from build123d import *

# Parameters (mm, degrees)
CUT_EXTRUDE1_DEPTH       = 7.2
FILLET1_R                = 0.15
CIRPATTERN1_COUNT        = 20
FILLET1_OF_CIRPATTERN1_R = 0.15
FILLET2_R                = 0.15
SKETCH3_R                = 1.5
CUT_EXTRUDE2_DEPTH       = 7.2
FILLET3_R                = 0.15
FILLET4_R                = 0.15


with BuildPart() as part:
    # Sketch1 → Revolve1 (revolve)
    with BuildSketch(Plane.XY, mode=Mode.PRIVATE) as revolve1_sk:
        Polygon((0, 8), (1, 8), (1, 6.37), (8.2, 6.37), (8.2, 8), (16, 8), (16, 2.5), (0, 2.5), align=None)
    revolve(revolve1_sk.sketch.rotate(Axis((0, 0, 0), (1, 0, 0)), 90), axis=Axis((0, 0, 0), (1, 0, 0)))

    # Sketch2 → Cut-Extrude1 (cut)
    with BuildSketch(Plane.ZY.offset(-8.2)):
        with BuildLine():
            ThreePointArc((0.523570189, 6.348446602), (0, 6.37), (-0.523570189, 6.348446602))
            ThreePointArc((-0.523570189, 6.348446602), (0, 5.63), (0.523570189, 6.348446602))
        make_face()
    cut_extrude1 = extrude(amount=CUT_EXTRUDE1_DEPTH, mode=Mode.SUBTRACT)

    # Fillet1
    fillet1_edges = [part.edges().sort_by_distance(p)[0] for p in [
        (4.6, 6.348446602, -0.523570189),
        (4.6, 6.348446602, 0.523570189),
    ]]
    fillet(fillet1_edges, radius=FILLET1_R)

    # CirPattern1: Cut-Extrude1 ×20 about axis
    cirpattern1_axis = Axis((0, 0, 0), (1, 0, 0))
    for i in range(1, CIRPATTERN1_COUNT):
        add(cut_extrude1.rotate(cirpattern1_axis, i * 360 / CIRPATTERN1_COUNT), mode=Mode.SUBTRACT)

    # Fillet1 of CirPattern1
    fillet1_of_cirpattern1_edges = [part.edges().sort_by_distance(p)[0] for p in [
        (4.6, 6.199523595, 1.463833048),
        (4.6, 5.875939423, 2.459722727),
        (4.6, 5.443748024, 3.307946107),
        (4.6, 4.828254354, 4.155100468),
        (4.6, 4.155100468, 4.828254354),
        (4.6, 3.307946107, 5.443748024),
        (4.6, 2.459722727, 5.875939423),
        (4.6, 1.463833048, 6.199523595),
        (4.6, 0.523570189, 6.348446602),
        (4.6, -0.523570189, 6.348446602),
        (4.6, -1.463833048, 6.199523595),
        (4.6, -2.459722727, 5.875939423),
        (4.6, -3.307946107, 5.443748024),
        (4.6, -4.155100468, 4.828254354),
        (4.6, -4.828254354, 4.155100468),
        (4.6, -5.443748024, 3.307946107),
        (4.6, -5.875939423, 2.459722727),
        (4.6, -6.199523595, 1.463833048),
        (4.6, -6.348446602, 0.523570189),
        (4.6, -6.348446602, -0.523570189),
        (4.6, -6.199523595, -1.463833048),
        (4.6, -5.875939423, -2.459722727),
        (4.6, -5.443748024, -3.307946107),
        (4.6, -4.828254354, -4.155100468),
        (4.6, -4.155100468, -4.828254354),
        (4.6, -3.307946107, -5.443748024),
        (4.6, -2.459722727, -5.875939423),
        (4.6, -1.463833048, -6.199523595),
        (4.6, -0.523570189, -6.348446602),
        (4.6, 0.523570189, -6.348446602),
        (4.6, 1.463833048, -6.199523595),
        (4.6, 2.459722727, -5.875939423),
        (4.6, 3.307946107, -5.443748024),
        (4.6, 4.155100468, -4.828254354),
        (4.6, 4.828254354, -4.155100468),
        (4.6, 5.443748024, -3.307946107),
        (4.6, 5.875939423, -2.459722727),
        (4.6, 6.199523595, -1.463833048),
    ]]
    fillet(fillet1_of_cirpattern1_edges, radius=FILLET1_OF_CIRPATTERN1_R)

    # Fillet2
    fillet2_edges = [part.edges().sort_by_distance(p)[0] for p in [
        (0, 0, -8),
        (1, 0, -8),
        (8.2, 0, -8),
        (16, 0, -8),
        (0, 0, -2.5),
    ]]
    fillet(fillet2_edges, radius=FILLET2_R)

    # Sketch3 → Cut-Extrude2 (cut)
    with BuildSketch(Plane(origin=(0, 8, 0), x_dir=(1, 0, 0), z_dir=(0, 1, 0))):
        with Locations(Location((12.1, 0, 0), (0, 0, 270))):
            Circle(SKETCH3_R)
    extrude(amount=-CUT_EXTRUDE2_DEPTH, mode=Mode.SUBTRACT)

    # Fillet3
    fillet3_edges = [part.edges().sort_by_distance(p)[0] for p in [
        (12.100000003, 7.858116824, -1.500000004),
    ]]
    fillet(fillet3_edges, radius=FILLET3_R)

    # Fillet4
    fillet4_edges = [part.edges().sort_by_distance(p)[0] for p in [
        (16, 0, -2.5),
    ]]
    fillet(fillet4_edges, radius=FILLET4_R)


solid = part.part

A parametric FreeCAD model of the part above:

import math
import FreeCAD as App
import Part
import Sketcher


def edges_at(feature, points):
    """Names of the edges that pass closest to the given points."""
    edges = feature.Shape.Edges
    near = lambda p: min(range(len(edges)), key=lambda i: edges[i].distToShape(Part.Vertex(*p))[0])
    return sorted({f"Edge{near(p) + 1}" for p in points})


def add_polygon(sketch, points):
    """Adds a closed chain of lines whose ends are joined by coincident constraints."""
    first, n = sketch.GeometryCount, len(points)
    for a, b in zip(points, points[1:] + points[:1]):
        sketch.addGeometry(Part.LineSegment(App.Vector(*a, 0), App.Vector(*b, 0)), False)
    for i in range(n):
        sketch.addConstraint(Sketcher.Constraint("Coincident", first + i, 2, first + (i + 1) % n, 1))

doc = App.newDocument("Part")
params = doc.addObject("Spreadsheet::Sheet", "Params")
for row, (alias, value) in enumerate([
    ("sketch1_width", "1 mm"),
    ("sketch1_width2", "16 mm"),
    ("sketch1_width3", "7.8 mm"),
    ("sketch1_height", "5.5 mm"),
    ("sketch1_height2", "1.63 mm"),
    ("revolution_angle", "360 deg"),
    ("sketch2_radius", "6.37 mm"),
    ("sketch2_radius2", "0.55 mm"),
    ("pocket1_length", "7.2 mm"),
    ("fillet_radius", "0.15 mm"),
    ("fillet2_radius", "0.15 mm"),
    ("fillet3_radius", "0.15 mm"),
    ("sketch3_diameter", "3 mm"),
    ("pocket2_length", "7.2 mm"),
    ("fillet4_radius", "0.15 mm"),
    ("fillet5_radius", "0.15 mm"),
], start=1):
    params.set(f"A{row}", alias)
    params.set(f"B{row}", "=" + value)
    params.setAlias(f"B{row}", alias)

body = doc.addObject("PartDesign::Body", "Body")

# Sketch on XY plane
sketch1 = doc.addObject("Sketcher::SketchObject", "Sketch")
body.addObject(sketch1)
sketch1.AttachmentSupport = (doc.XY_Plane, [""])
sketch1.MapMode = "FlatFace"
add_polygon(sketch1, [(1, 8), (0, 8), (0, 2.5), (16, 2.5), (16, 8), (8.2, 8), (8.2, 6.4), (1, 6.4)])  # lines 0-7
sketch1.addConstraint(Sketcher.Constraint("Horizontal", 0))
sketch1.addConstraint(Sketcher.Constraint("Vertical", 1))
sketch1.addConstraint(Sketcher.Constraint("Horizontal", 2))
sketch1.addConstraint(Sketcher.Constraint("Vertical", 3))
sketch1.addConstraint(Sketcher.Constraint("Horizontal", 4))
sketch1.addConstraint(Sketcher.Constraint("Vertical", 5))
sketch1.addConstraint(Sketcher.Constraint("Horizontal", 6))
sketch1.addConstraint(Sketcher.Constraint("Vertical", 7))
sketch1.addConstraint(Sketcher.Constraint("PointOnObject", 0, 2, -2))
sketch1.addConstraint(Sketcher.Constraint("Horizontal", 0, 2, 3, 2))
sketch1.addConstraint(Sketcher.Constraint("DistanceX", 0, 2, 0, 1, 1.0))
sketch1.addConstraint(Sketcher.Constraint("DistanceX", 2, 1, 2, 2, 16.0))
sketch1.addConstraint(Sketcher.Constraint("DistanceX", 4, 2, 4, 1, 7.8))
sketch1.addConstraint(Sketcher.Constraint("DistanceY", 1, 2, 1, 1, 5.5))
sketch1.addConstraint(Sketcher.Constraint("DistanceY", -1, 1, 0, 2, 8.0))
sketch1.addConstraint(Sketcher.Constraint("DistanceY", 5, 2, 5, 1, 1.63))
sketch1.setExpression("Constraints[18]", "Params.sketch1_width")
sketch1.setExpression("Constraints[19]", "Params.sketch1_width2")
sketch1.setExpression("Constraints[20]", "Params.sketch1_width3")
sketch1.setExpression("Constraints[21]", "Params.sketch1_height")
sketch1.setExpression("Constraints[23]", "Params.sketch1_height2")
revolution = doc.addObject("PartDesign::Revolution", "Revolution")
body.addObject(revolution)
revolution.Profile = sketch1
revolution.ReferenceAxis = (sketch1, ["H_Axis"])
revolution.setExpression("Angle", "Params.revolution_angle")

# Sketch on YZ plane
sketch2 = doc.addObject("Sketcher::SketchObject", "Sketch001")
body.addObject(sketch2)
sketch2.AttachmentSupport = (doc.YZ_Plane, [""])
sketch2.MapMode = "FlatFace"
sketch2.AttachmentOffset = App.Placement(App.Vector(0, 0, 8.2), App.Rotation())
sketch2.addGeometry(Part.ArcOfCircle(Part.Circle(App.Vector(0, 0, 0), App.Vector(0, 0, 1), 6.4), math.radians(-4.71), math.radians(4.71)), False)
sketch2.addGeometry(Part.ArcOfCircle(Part.Circle(App.Vector(6.2, 0, 0), App.Vector(0, 0, 1), 0.6), math.radians(72), math.radians(288)), False)
sketch2.addConstraint(Sketcher.Constraint("Coincident", 0, 1, 1, 2))
sketch2.addConstraint(Sketcher.Constraint("Coincident", 1, 1, 0, 2))
sketch2.addConstraint(Sketcher.Constraint("Coincident", 0, 3, -1, 1))
sketch2.addConstraint(Sketcher.Constraint("PointOnObject", 1, 3, -1))
sketch2.addConstraint(Sketcher.Constraint("Radius", 0, 6.37))
sketch2.addConstraint(Sketcher.Constraint("Radius", 1, 0.55))
sketch2.addConstraint(Sketcher.Constraint("DistanceX", -1, 1, 1, 3, 6.18))
sketch2.setExpression("Constraints[4]", "Params.sketch2_radius")
sketch2.setExpression("Constraints[5]", "Params.sketch2_radius2")
pocket1 = doc.addObject("PartDesign::Pocket", "Pocket")
body.addObject(pocket1)
pocket1.Profile = sketch2
pocket1.setExpression("Length", "Params.pocket1_length")
doc.recompute()

fillet = doc.addObject("PartDesign::Fillet", "Fillet")
body.addObject(fillet)
fillet.Base = (pocket1, edges_at(pocket1, [(4.6, 6.348, -0.524), (4.6, 6.348, 0.524)]))
fillet.setExpression("Radius", "Params.fillet_radius")
doc.recompute()

polarpattern = doc.addObject("PartDesign::PolarPattern", "PolarPattern")
body.addObject(polarpattern)
polarpattern.Originals = [pocket1]
polarpattern.Axis = (doc.X_Axis, [""])
polarpattern.Angle = 360
polarpattern.Occurrences = 20
body.Tip = polarpattern
doc.recompute()

fillet2 = doc.addObject("PartDesign::Fillet", "Fillet001")
body.addObject(fillet2)
fillet2.Base = (polarpattern, edges_at(polarpattern, [
    (4.6, 6.2, 1.464),
    (4.6, 5.876, 2.46),
    (4.6, 5.444, 3.308),
    (4.6, 4.828, 4.155),
    (4.6, 4.155, 4.828),
    (4.6, 3.308, 5.444),
    (4.6, 2.46, 5.876),
    (4.6, 1.464, 6.2),
    (4.6, 0.524, 6.348),
    (4.6, -0.524, 6.348),
    (4.6, -1.464, 6.2),
    (4.6, -2.46, 5.876),
    (4.6, -3.308, 5.444),
    (4.6, -4.155, 4.828),
    (4.6, -4.828, 4.155),
    (4.6, -5.444, 3.308),
    (4.6, -5.876, 2.46),
    (4.6, -6.2, 1.464),
    (4.6, -6.348, 0.524),
    (4.6, -6.348, -0.524),
    (4.6, -6.2, -1.464),
    (4.6, -5.876, -2.46),
    (4.6, -5.444, -3.308),
    (4.6, -4.828, -4.155),
    (4.6, -4.155, -4.828),
    (4.6, -3.308, -5.444),
    (4.6, -2.46, -5.876),
    (4.6, -1.464, -6.2),
    (4.6, -0.524, -6.348),
    (4.6, 0.524, -6.348),
    (4.6, 1.464, -6.2),
    (4.6, 2.46, -5.876),
    (4.6, 3.308, -5.444),
    (4.6, 4.155, -4.828),
    (4.6, 4.828, -4.155),
    (4.6, 5.444, -3.308),
    (4.6, 5.876, -2.46),
    (4.6, 6.2, -1.464),
]))
fillet2.setExpression("Radius", "Params.fillet2_radius")
doc.recompute()

fillet3 = doc.addObject("PartDesign::Fillet", "Fillet002")
body.addObject(fillet3)
fillet3.Base = (fillet2, edges_at(fillet2, [
    (0, 0, -8),
    (1, 0, -8),
    (8.2, 0, -8),
    (16, 0, -8),
    (0, 0, -2.5),
]))
fillet3.setExpression("Radius", "Params.fillet3_radius")

# Sketch on XZ plane
sketch3 = doc.addObject("Sketcher::SketchObject", "Sketch002")
body.addObject(sketch3)
sketch3.AttachmentSupport = (doc.XZ_Plane, [""])
sketch3.MapMode = "FlatFace"
sketch3.AttachmentOffset = App.Placement(App.Vector(0, 0, -8), App.Rotation())
sketch3.addGeometry(Part.Circle(App.Vector(12.1, 0, 0), App.Vector(0, 0, 1), 1.5), False)
sketch3.addConstraint(Sketcher.Constraint("PointOnObject", 0, 3, -1))
sketch3.addConstraint(Sketcher.Constraint("Diameter", 0, 3.0))
sketch3.addConstraint(Sketcher.Constraint("DistanceX", -1, 1, 0, 3, 12.1))
sketch3.setExpression("Constraints[1]", "Params.sketch3_diameter")
pocket2 = doc.addObject("PartDesign::Pocket", "Pocket001")
body.addObject(pocket2)
pocket2.Profile = sketch3
pocket2.setExpression("Length", "Params.pocket2_length")
pocket2.Reversed = True
doc.recompute()

fillet4 = doc.addObject("PartDesign::Fillet", "Fillet003")
body.addObject(fillet4)
fillet4.Base = (pocket2, edges_at(pocket2, [(12.1, 7.858, -1.5)]))
fillet4.setExpression("Radius", "Params.fillet4_radius")
doc.recompute()

fillet5 = doc.addObject("PartDesign::Fillet", "Fillet004")
body.addObject(fillet5)
fillet5.Base = (fillet4, edges_at(fillet4, [(16, 0, -2.5)]))
fillet5.setExpression("Radius", "Params.fillet5_radius")

doc.recompute()
